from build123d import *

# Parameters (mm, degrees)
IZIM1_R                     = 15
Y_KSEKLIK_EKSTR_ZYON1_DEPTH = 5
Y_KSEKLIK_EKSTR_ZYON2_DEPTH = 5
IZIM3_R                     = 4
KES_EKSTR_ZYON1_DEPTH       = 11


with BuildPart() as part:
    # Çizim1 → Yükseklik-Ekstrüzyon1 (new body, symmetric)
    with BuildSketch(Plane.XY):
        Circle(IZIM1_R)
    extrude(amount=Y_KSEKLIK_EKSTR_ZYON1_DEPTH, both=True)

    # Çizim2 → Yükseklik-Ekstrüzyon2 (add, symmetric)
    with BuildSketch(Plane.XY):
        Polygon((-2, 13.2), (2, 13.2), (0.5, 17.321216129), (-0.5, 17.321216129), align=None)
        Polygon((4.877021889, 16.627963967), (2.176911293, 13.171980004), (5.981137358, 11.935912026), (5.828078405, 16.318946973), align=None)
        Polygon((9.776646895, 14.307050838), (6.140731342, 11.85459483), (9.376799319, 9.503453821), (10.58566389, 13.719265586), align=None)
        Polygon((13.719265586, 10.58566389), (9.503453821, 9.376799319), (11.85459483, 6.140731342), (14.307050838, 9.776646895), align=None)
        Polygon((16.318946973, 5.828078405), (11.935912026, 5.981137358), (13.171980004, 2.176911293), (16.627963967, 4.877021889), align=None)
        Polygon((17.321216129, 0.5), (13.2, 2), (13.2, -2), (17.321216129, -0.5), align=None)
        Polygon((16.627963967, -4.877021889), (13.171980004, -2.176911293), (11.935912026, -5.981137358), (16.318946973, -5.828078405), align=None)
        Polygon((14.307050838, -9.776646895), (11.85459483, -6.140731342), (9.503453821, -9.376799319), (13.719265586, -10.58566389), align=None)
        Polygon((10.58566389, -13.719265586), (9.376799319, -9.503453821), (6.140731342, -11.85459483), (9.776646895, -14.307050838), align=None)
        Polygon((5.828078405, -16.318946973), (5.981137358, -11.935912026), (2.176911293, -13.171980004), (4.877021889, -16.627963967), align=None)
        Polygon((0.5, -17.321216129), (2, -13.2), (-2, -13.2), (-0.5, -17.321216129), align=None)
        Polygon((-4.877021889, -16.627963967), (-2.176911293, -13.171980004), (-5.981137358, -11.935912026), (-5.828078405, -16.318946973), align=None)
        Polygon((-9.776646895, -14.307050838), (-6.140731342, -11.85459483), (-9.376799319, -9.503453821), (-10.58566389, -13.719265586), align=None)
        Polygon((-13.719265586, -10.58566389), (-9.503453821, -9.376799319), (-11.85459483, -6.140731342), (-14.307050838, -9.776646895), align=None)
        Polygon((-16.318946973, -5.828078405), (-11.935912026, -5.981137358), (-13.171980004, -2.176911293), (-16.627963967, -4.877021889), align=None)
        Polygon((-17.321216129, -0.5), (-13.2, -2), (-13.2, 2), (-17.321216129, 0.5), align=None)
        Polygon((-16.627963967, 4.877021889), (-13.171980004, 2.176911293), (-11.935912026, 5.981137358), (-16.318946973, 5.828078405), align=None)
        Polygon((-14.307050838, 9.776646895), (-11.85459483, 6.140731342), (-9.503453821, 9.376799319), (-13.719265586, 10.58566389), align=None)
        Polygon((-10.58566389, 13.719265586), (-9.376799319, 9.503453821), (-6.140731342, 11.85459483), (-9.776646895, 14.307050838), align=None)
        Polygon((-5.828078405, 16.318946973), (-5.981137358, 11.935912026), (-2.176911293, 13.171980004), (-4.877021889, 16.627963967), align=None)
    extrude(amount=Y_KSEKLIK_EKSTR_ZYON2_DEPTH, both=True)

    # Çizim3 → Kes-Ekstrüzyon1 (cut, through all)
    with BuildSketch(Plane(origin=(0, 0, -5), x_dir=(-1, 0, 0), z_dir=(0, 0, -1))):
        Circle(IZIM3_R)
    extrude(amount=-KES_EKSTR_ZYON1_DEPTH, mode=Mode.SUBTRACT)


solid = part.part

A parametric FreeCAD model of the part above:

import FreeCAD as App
import Part
import Sketcher

V = App.Vector
Q = App.Units.Quantity


def add_polygon(sketch, points):
    """Adds a closed chain of lines whose ends are joined by coincident constraints."""
    first, n = sketch.GeometryCount, len(points)
    for a, b in zip(points, points[1:] + points[:1]):
        sketch.addGeometry(Part.LineSegment(App.Vector(*a, 0), App.Vector(*b, 0)), False)
    for i in range(n):
        sketch.addConstraint(Sketcher.Constraint("Coincident", first + i, 2, first + (i + 1) % n, 1))

doc = App.newDocument("Part")
body = doc.addObject("PartDesign::Body", "Body")

# Sketch on XY plane
sketch1 = body.newObject("Sketcher::SketchObject", "Sketch")
sketch1.AttachmentSupport = (doc.getObject("XY_Plane"), [""])
sketch1.MapMode = "FlatFace"
sketch1.addGeometry(Part.Circle(V(0, 0, 0), V(0, 0, 1), 15), False)
sketch1.addConstraint([
    Sketcher.Constraint("Coincident", 0, 3, -1, 1),
    Sketcher.Constraint("Diameter", 0, 30.0),
])
pad1 = body.newObject("PartDesign::Pad", "Pad")
pad1.Profile = sketch1
pad1.Length = 10
pad1.Midplane = True

# Sketch on XY plane
sketch2 = body.newObject("Sketcher::SketchObject", "Sketch001")
sketch2.AttachmentSupport = (doc.getObject("XY_Plane"), [""])
sketch2.MapMode = "FlatFace"
add_polygon(sketch2, [(-2, 13.2), (2, 13.2), (0.5, 17.3), (-0.5, 17.3)])  # lines 0-3
add_polygon(sketch2, [(4.9, 16.6), (2.2, 13.2), (6, 11.9), (5.8, 16.3)])  # lines 4-7
add_polygon(sketch2, [(9.8, 14.3), (6.1, 11.9), (9.4, 9.5), (10.6, 13.7)])  # lines 8-11
add_polygon(sketch2, [(13.7, 10.6), (9.5, 9.4), (11.9, 6.1), (14.3, 9.8)])  # lines 12-15
add_polygon(sketch2, [(16.3, 5.8), (11.9, 6), (13.2, 2.2), (16.6, 4.9)])  # lines 16-19
add_polygon(sketch2, [(17.3, 0.5), (13.2, 2), (13.2, -2), (17.3, -0.5)])  # lines 20-23
add_polygon(sketch2, [(16.6, -4.9), (13.2, -2.2), (11.9, -6), (16.3, -5.8)])  # lines 24-27
add_polygon(sketch2, [(14.3, -9.8), (11.9, -6.1), (9.5, -9.4), (13.7, -10.6)])  # lines 28-31
add_polygon(sketch2, [(10.6, -13.7), (9.4, -9.5), (6.1, -11.9), (9.8, -14.3)])  # lines 32-35
add_polygon(sketch2, [(5.8, -16.3), (6, -11.9), (2.2, -13.2), (4.9, -16.6)])  # lines 36-39
add_polygon(sketch2, [(0.5, -17.3), (2, -13.2), (-2, -13.2), (-0.5, -17.3)])  # lines 40-43
add_polygon(sketch2, [(-4.9, -16.6), (-2.2, -13.2), (-6, -11.9), (-5.8, -16.3)])  # lines 44-47
add_polygon(sketch2, [(-9.8, -14.3), (-6.1, -11.9), (-9.4, -9.5), (-10.6, -13.7)])  # lines 48-51
add_polygon(sketch2, [(-13.7, -10.6), (-9.5, -9.4), (-11.9, -6.1), (-14.3, -9.8)])  # lines 52-55
add_polygon(sketch2, [(-16.3, -5.8), (-11.9, -6), (-13.2, -2.2), (-16.6, -4.9)])  # lines 56-59
add_polygon(sketch2, [(-17.3, -0.5), (-13.2, -2), (-13.2, 2), (-17.3, 0.5)])  # lines 60-63
add_polygon(sketch2, [(-16.6, 4.9), (-13.2, 2.2), (-11.9, 6), (-16.3, 5.8)])  # lines 64-67
add_polygon(sketch2, [(-14.3, 9.8), (-11.9, 6.1), (-9.5, 9.4), (-13.7, 10.6)])  # lines 68-71
add_polygon(sketch2, [(-10.6, 13.7), (-9.4, 9.5), (-6.1, 11.9), (-9.8, 14.3)])  # lines 72-75
add_polygon(sketch2, [(-5.8, 16.3), (-6, 11.9), (-2.2, 13.2), (-4.9, 16.6)])  # lines 76-79
sketch2.addConstraint([
    Sketcher.Constraint("Horizontal", 0),
    Sketcher.Constraint("Horizontal", 2),
    Sketcher.Constraint("Vertical", 21),
    Sketcher.Constraint("Vertical", 23),
    Sketcher.Constraint("Horizontal", 41),
    Sketcher.Constraint("Horizontal", 43),
    Sketcher.Constraint("Vertical", 61),
    Sketcher.Constraint("Vertical", 63),
    Sketcher.Constraint("Symmetric", 3, 2, 40, 2, -1, 1),
    Sketcher.Constraint("Symmetric", 1, 2, 42, 2, -1, 1),
    Sketcher.Constraint("Symmetric", 4, 2, 44, 2, -1, 1),
    Sketcher.Constraint("Symmetric", 5, 2, 45, 2, -1, 1),
    Sketcher.Constraint("Symmetric", 6, 2, 46, 2, -1, 1),
    Sketcher.Constraint("Symmetric", 7, 2, 47, 2, -1, 1),
    Sketcher.Constraint("Symmetric", 8, 2, 48, 2, -1, 1),
    Sketcher.Constraint("Symmetric", 9, 2, 49, 2, -1, 1),
    Sketcher.Constraint("Symmetric", 10, 2, 50, 2, -1, 1),
    Sketcher.Constraint("Symmetric", 11, 2, 51, 2, -1, 1),
    Sketcher.Constraint("Symmetric", 12, 2, 52, 2, -1, 1),
    Sketcher.Constraint("Symmetric", 13, 2, 53, 2, -1, 1),
    Sketcher.Constraint("Symmetric", 14, 2, 54, 2, -1, 1),
    Sketcher.Constraint("Symmetric", 15, 2, 55, 2, -1, 1),
    Sketcher.Constraint("Symmetric", 16, 2, 56, 2, -1, 1),
    Sketcher.Constraint("Symmetric", 17, 2, 57, 2, -1, 1),
    Sketcher.Constraint("Symmetric", 18, 2, 58, 2, -1, 1),
    Sketcher.Constraint("Symmetric", 19, 2, 59, 2, -1, 1),
    Sketcher.Constraint("Symmetric", 20, 2, 60, 2, -1, 1),
    Sketcher.Constraint("Symmetric", 22, 2, 62, 2, -1, 1),
    Sketcher.Constraint("Symmetric", 24, 2, 64, 2, -1, 1),
    Sketcher.Constraint("Symmetric", 25, 2, 65, 2, -1, 1),
    Sketcher.Constraint("Symmetric", 26, 2, 66, 2, -1, 1),
    Sketcher.Constraint("Symmetric", 27, 2, 67, 2, -1, 1),
    Sketcher.Constraint("Symmetric", 28, 2, 68, 2, -1, 1),
    Sketcher.Constraint("Symmetric", 29, 2, 69, 2, -1, 1),
    Sketcher.Constraint("Symmetric", 30, 2, 70, 2, -1, 1),
    Sketcher.Constraint("Symmetric", 31, 2, 71, 2, -1, 1),
    Sketcher.Constraint("Symmetric", 32, 2, 72, 2, -1, 1),
    Sketcher.Constraint("Symmetric", 33, 2, 73, 2, -1, 1),
    Sketcher.Constraint("Symmetric", 34, 2, 74, 2, -1, 1),
    Sketcher.Constraint("Symmetric", 35, 2, 75, 2, -1, 1),
    Sketcher.Constraint("Symmetric", 36, 2, 76, 2, -1, 1),
    Sketcher.Constraint("Symmetric", 37, 2, 77, 2, -1, 1),
    Sketcher.Constraint("Symmetric", 38, 2, 78, 2, -1, 1),
    Sketcher.Constraint("Symmetric", 39, 2, 79, 2, -1, 1),
    Sketcher.Constraint("Symmetric", 37, 2, 44, 2, -2),
    Sketcher.Constraint("Symmetric", 36, 2, 45, 2, -2),
    Sketcher.Constraint("Symmetric", 39, 2, 46, 2, -2),
    Sketcher.Constraint("Symmetric", 38, 2, 47, 2, -2),
    Sketcher.Constraint("Symmetric", 33, 2, 48, 2, -2),
    Sketcher.Constraint("Symmetric", 32, 2, 49, 2, -2),
    Sketcher.Constraint("Symmetric", 35, 2, 50, 2, -2),
    Sketcher.Constraint("Symmetric", 34, 2, 51, 2, -2),
    Sketcher.Constraint("Symmetric", 29, 2, 52, 2, -2),
    Sketcher.Constraint("Symmetric", 28, 2, 53, 2, -2),
    Sketcher.Constraint("Symmetric", 31, 2, 54, 2, -2),
    Sketcher.Constraint("Symmetric", 30, 2, 55, 2, -2),
    Sketcher.Constraint("Symmetric", 25, 2, 56, 2, -2),
    Sketcher.Constraint("Symmetric", 24, 2, 57, 2, -2),
    Sketcher.Constraint("Symmetric", 27, 2, 58, 2, -2),
    Sketcher.Constraint("Symmetric", 26, 2, 59, 2, -2),
    Sketcher.Constraint("Parallel", 5, 7),
    Sketcher.Constraint("Parallel", 9, 11),
    Sketcher.Constraint("Parallel", 13, 15),
    Sketcher.Constraint("Parallel", 17, 19),
    Sketcher.Constraint("Perpendicular", 3, 20),
    Sketcher.Constraint("Perpendicular", 1, 22),
    Sketcher.Constraint("Perpendicular", 4, 24),
    Sketcher.Constraint("Perpendicular", 7, 25),
    Sketcher.Constraint("Perpendicular", 6, 26),
    Sketcher.Constraint("Perpendicular", 8, 28),
    Sketcher.Constraint("Perpendicular", 11, 29),
    Sketcher.Constraint("Perpendicular", 10, 30),
    Sketcher.Constraint("Perpendicular", 20, 40),
    Sketcher.Constraint("Perpendicular", 22, 42),
    Sketcher.Constraint("Perpendicular", 40, 60),
    Sketcher.Constraint("Perpendicular", 42, 62),
    Sketcher.Constraint("Horizontal", 21, 2, 60, 2),
    Sketcher.Constraint("Horizontal", 23, 2, 62, 2),
    Sketcher.Constraint("Vertical", 0, 2, 40, 2),
    Sketcher.Constraint("Equal", 41, 21),
    Sketcher.Constraint("Equal", 43, 23),
    Sketcher.Constraint("Equal", 3, 4),
    Sketcher.Constraint("Equal", 4, 6),
    Sketcher.Constraint("Equal", 6, 8),
    Sketcher.Constraint("Equal", 5, 9),
    Sketcher.Constraint("Equal", 8, 10),
    Sketcher.Constraint("Equal", 7, 11),
    Sketcher.Constraint("Equal", 10, 12),
    Sketcher.Constraint("Equal", 9, 13),
    Sketcher.Constraint("Equal", 14, 16),
    Sketcher.Constraint("Equal", 13, 17),
    Sketcher.Constraint("DistanceX", 0, 1, 0, 2, 4.0),
    Sketcher.Constraint("DistanceX", 2, 2, 2, 1, 1.0),
    Sketcher.Constraint("Angle", 1, Q("110 deg")),
    Sketcher.Constraint("Angle", 4, Q("-128 deg")),
    Sketcher.Constraint("Angle", 5, Q("-18 deg")),
    Sketcher.Constraint("Angle", 8, Q("-146 deg")),
    Sketcher.Constraint("Distance", 5, 4.0),
    Sketcher.Constraint("DistanceY", -1, 1, 0, 2, 13.2),
    Sketcher.Constraint("DistanceX", -1, 1, 20, 2, 13.2),
    Sketcher.Constraint("DistanceX", -1, 1, 9, 2, 9.376799),
    Sketcher.Constraint("DistanceY", -1, 1, 12, 2, 9.376799),
    Sketcher.Constraint("DistanceX", -1, 1, 4, 2, 2.176911),
    Sketcher.Constraint("DistanceY", -1, 1, 4, 2, 13.17198),
    Sketcher.Constraint("DistanceY", -1, 1, 11, 2, 14.307051),
    Sketcher.Constraint("DistanceX", -1, 1, 14, 2, 14.307051),
    Sketcher.Constraint("DistanceX", -1, 1, 17, 2, 13.17198),
    Sketcher.Constraint("DistanceY", -1, 1, 17, 2, 2.176911),
])
pad2 = body.newObject("PartDesign::Pad", "Pad001")
pad2.Profile = sketch2
pad2.Length = 10
pad2.Midplane = True

# Sketch on XY plane
sketch3 = body.newObject("Sketcher::SketchObject", "Sketch002")
sketch3.AttachmentSupport = (doc.getObject("XY_Plane"), [""])
sketch3.MapMode = "FlatFace"
sketch3.AttachmentOffset = App.Placement(V(0, 0, -5), App.Rotation())
sketch3.addGeometry(Part.Circle(V(0, 0, 0), V(0, 0, 1), 4), False)
sketch3.addConstraint([
    Sketcher.Constraint("Coincident", 0, 3, -1, 1),
    Sketcher.Constraint("Diameter", 0, 8.0),
])
pocket1 = body.newObject("PartDesign::Pocket", "Pocket")
pocket1.Profile = sketch3
pocket1.Type = "ThroughAll"
pocket1.Reversed = True

doc.recompute()
